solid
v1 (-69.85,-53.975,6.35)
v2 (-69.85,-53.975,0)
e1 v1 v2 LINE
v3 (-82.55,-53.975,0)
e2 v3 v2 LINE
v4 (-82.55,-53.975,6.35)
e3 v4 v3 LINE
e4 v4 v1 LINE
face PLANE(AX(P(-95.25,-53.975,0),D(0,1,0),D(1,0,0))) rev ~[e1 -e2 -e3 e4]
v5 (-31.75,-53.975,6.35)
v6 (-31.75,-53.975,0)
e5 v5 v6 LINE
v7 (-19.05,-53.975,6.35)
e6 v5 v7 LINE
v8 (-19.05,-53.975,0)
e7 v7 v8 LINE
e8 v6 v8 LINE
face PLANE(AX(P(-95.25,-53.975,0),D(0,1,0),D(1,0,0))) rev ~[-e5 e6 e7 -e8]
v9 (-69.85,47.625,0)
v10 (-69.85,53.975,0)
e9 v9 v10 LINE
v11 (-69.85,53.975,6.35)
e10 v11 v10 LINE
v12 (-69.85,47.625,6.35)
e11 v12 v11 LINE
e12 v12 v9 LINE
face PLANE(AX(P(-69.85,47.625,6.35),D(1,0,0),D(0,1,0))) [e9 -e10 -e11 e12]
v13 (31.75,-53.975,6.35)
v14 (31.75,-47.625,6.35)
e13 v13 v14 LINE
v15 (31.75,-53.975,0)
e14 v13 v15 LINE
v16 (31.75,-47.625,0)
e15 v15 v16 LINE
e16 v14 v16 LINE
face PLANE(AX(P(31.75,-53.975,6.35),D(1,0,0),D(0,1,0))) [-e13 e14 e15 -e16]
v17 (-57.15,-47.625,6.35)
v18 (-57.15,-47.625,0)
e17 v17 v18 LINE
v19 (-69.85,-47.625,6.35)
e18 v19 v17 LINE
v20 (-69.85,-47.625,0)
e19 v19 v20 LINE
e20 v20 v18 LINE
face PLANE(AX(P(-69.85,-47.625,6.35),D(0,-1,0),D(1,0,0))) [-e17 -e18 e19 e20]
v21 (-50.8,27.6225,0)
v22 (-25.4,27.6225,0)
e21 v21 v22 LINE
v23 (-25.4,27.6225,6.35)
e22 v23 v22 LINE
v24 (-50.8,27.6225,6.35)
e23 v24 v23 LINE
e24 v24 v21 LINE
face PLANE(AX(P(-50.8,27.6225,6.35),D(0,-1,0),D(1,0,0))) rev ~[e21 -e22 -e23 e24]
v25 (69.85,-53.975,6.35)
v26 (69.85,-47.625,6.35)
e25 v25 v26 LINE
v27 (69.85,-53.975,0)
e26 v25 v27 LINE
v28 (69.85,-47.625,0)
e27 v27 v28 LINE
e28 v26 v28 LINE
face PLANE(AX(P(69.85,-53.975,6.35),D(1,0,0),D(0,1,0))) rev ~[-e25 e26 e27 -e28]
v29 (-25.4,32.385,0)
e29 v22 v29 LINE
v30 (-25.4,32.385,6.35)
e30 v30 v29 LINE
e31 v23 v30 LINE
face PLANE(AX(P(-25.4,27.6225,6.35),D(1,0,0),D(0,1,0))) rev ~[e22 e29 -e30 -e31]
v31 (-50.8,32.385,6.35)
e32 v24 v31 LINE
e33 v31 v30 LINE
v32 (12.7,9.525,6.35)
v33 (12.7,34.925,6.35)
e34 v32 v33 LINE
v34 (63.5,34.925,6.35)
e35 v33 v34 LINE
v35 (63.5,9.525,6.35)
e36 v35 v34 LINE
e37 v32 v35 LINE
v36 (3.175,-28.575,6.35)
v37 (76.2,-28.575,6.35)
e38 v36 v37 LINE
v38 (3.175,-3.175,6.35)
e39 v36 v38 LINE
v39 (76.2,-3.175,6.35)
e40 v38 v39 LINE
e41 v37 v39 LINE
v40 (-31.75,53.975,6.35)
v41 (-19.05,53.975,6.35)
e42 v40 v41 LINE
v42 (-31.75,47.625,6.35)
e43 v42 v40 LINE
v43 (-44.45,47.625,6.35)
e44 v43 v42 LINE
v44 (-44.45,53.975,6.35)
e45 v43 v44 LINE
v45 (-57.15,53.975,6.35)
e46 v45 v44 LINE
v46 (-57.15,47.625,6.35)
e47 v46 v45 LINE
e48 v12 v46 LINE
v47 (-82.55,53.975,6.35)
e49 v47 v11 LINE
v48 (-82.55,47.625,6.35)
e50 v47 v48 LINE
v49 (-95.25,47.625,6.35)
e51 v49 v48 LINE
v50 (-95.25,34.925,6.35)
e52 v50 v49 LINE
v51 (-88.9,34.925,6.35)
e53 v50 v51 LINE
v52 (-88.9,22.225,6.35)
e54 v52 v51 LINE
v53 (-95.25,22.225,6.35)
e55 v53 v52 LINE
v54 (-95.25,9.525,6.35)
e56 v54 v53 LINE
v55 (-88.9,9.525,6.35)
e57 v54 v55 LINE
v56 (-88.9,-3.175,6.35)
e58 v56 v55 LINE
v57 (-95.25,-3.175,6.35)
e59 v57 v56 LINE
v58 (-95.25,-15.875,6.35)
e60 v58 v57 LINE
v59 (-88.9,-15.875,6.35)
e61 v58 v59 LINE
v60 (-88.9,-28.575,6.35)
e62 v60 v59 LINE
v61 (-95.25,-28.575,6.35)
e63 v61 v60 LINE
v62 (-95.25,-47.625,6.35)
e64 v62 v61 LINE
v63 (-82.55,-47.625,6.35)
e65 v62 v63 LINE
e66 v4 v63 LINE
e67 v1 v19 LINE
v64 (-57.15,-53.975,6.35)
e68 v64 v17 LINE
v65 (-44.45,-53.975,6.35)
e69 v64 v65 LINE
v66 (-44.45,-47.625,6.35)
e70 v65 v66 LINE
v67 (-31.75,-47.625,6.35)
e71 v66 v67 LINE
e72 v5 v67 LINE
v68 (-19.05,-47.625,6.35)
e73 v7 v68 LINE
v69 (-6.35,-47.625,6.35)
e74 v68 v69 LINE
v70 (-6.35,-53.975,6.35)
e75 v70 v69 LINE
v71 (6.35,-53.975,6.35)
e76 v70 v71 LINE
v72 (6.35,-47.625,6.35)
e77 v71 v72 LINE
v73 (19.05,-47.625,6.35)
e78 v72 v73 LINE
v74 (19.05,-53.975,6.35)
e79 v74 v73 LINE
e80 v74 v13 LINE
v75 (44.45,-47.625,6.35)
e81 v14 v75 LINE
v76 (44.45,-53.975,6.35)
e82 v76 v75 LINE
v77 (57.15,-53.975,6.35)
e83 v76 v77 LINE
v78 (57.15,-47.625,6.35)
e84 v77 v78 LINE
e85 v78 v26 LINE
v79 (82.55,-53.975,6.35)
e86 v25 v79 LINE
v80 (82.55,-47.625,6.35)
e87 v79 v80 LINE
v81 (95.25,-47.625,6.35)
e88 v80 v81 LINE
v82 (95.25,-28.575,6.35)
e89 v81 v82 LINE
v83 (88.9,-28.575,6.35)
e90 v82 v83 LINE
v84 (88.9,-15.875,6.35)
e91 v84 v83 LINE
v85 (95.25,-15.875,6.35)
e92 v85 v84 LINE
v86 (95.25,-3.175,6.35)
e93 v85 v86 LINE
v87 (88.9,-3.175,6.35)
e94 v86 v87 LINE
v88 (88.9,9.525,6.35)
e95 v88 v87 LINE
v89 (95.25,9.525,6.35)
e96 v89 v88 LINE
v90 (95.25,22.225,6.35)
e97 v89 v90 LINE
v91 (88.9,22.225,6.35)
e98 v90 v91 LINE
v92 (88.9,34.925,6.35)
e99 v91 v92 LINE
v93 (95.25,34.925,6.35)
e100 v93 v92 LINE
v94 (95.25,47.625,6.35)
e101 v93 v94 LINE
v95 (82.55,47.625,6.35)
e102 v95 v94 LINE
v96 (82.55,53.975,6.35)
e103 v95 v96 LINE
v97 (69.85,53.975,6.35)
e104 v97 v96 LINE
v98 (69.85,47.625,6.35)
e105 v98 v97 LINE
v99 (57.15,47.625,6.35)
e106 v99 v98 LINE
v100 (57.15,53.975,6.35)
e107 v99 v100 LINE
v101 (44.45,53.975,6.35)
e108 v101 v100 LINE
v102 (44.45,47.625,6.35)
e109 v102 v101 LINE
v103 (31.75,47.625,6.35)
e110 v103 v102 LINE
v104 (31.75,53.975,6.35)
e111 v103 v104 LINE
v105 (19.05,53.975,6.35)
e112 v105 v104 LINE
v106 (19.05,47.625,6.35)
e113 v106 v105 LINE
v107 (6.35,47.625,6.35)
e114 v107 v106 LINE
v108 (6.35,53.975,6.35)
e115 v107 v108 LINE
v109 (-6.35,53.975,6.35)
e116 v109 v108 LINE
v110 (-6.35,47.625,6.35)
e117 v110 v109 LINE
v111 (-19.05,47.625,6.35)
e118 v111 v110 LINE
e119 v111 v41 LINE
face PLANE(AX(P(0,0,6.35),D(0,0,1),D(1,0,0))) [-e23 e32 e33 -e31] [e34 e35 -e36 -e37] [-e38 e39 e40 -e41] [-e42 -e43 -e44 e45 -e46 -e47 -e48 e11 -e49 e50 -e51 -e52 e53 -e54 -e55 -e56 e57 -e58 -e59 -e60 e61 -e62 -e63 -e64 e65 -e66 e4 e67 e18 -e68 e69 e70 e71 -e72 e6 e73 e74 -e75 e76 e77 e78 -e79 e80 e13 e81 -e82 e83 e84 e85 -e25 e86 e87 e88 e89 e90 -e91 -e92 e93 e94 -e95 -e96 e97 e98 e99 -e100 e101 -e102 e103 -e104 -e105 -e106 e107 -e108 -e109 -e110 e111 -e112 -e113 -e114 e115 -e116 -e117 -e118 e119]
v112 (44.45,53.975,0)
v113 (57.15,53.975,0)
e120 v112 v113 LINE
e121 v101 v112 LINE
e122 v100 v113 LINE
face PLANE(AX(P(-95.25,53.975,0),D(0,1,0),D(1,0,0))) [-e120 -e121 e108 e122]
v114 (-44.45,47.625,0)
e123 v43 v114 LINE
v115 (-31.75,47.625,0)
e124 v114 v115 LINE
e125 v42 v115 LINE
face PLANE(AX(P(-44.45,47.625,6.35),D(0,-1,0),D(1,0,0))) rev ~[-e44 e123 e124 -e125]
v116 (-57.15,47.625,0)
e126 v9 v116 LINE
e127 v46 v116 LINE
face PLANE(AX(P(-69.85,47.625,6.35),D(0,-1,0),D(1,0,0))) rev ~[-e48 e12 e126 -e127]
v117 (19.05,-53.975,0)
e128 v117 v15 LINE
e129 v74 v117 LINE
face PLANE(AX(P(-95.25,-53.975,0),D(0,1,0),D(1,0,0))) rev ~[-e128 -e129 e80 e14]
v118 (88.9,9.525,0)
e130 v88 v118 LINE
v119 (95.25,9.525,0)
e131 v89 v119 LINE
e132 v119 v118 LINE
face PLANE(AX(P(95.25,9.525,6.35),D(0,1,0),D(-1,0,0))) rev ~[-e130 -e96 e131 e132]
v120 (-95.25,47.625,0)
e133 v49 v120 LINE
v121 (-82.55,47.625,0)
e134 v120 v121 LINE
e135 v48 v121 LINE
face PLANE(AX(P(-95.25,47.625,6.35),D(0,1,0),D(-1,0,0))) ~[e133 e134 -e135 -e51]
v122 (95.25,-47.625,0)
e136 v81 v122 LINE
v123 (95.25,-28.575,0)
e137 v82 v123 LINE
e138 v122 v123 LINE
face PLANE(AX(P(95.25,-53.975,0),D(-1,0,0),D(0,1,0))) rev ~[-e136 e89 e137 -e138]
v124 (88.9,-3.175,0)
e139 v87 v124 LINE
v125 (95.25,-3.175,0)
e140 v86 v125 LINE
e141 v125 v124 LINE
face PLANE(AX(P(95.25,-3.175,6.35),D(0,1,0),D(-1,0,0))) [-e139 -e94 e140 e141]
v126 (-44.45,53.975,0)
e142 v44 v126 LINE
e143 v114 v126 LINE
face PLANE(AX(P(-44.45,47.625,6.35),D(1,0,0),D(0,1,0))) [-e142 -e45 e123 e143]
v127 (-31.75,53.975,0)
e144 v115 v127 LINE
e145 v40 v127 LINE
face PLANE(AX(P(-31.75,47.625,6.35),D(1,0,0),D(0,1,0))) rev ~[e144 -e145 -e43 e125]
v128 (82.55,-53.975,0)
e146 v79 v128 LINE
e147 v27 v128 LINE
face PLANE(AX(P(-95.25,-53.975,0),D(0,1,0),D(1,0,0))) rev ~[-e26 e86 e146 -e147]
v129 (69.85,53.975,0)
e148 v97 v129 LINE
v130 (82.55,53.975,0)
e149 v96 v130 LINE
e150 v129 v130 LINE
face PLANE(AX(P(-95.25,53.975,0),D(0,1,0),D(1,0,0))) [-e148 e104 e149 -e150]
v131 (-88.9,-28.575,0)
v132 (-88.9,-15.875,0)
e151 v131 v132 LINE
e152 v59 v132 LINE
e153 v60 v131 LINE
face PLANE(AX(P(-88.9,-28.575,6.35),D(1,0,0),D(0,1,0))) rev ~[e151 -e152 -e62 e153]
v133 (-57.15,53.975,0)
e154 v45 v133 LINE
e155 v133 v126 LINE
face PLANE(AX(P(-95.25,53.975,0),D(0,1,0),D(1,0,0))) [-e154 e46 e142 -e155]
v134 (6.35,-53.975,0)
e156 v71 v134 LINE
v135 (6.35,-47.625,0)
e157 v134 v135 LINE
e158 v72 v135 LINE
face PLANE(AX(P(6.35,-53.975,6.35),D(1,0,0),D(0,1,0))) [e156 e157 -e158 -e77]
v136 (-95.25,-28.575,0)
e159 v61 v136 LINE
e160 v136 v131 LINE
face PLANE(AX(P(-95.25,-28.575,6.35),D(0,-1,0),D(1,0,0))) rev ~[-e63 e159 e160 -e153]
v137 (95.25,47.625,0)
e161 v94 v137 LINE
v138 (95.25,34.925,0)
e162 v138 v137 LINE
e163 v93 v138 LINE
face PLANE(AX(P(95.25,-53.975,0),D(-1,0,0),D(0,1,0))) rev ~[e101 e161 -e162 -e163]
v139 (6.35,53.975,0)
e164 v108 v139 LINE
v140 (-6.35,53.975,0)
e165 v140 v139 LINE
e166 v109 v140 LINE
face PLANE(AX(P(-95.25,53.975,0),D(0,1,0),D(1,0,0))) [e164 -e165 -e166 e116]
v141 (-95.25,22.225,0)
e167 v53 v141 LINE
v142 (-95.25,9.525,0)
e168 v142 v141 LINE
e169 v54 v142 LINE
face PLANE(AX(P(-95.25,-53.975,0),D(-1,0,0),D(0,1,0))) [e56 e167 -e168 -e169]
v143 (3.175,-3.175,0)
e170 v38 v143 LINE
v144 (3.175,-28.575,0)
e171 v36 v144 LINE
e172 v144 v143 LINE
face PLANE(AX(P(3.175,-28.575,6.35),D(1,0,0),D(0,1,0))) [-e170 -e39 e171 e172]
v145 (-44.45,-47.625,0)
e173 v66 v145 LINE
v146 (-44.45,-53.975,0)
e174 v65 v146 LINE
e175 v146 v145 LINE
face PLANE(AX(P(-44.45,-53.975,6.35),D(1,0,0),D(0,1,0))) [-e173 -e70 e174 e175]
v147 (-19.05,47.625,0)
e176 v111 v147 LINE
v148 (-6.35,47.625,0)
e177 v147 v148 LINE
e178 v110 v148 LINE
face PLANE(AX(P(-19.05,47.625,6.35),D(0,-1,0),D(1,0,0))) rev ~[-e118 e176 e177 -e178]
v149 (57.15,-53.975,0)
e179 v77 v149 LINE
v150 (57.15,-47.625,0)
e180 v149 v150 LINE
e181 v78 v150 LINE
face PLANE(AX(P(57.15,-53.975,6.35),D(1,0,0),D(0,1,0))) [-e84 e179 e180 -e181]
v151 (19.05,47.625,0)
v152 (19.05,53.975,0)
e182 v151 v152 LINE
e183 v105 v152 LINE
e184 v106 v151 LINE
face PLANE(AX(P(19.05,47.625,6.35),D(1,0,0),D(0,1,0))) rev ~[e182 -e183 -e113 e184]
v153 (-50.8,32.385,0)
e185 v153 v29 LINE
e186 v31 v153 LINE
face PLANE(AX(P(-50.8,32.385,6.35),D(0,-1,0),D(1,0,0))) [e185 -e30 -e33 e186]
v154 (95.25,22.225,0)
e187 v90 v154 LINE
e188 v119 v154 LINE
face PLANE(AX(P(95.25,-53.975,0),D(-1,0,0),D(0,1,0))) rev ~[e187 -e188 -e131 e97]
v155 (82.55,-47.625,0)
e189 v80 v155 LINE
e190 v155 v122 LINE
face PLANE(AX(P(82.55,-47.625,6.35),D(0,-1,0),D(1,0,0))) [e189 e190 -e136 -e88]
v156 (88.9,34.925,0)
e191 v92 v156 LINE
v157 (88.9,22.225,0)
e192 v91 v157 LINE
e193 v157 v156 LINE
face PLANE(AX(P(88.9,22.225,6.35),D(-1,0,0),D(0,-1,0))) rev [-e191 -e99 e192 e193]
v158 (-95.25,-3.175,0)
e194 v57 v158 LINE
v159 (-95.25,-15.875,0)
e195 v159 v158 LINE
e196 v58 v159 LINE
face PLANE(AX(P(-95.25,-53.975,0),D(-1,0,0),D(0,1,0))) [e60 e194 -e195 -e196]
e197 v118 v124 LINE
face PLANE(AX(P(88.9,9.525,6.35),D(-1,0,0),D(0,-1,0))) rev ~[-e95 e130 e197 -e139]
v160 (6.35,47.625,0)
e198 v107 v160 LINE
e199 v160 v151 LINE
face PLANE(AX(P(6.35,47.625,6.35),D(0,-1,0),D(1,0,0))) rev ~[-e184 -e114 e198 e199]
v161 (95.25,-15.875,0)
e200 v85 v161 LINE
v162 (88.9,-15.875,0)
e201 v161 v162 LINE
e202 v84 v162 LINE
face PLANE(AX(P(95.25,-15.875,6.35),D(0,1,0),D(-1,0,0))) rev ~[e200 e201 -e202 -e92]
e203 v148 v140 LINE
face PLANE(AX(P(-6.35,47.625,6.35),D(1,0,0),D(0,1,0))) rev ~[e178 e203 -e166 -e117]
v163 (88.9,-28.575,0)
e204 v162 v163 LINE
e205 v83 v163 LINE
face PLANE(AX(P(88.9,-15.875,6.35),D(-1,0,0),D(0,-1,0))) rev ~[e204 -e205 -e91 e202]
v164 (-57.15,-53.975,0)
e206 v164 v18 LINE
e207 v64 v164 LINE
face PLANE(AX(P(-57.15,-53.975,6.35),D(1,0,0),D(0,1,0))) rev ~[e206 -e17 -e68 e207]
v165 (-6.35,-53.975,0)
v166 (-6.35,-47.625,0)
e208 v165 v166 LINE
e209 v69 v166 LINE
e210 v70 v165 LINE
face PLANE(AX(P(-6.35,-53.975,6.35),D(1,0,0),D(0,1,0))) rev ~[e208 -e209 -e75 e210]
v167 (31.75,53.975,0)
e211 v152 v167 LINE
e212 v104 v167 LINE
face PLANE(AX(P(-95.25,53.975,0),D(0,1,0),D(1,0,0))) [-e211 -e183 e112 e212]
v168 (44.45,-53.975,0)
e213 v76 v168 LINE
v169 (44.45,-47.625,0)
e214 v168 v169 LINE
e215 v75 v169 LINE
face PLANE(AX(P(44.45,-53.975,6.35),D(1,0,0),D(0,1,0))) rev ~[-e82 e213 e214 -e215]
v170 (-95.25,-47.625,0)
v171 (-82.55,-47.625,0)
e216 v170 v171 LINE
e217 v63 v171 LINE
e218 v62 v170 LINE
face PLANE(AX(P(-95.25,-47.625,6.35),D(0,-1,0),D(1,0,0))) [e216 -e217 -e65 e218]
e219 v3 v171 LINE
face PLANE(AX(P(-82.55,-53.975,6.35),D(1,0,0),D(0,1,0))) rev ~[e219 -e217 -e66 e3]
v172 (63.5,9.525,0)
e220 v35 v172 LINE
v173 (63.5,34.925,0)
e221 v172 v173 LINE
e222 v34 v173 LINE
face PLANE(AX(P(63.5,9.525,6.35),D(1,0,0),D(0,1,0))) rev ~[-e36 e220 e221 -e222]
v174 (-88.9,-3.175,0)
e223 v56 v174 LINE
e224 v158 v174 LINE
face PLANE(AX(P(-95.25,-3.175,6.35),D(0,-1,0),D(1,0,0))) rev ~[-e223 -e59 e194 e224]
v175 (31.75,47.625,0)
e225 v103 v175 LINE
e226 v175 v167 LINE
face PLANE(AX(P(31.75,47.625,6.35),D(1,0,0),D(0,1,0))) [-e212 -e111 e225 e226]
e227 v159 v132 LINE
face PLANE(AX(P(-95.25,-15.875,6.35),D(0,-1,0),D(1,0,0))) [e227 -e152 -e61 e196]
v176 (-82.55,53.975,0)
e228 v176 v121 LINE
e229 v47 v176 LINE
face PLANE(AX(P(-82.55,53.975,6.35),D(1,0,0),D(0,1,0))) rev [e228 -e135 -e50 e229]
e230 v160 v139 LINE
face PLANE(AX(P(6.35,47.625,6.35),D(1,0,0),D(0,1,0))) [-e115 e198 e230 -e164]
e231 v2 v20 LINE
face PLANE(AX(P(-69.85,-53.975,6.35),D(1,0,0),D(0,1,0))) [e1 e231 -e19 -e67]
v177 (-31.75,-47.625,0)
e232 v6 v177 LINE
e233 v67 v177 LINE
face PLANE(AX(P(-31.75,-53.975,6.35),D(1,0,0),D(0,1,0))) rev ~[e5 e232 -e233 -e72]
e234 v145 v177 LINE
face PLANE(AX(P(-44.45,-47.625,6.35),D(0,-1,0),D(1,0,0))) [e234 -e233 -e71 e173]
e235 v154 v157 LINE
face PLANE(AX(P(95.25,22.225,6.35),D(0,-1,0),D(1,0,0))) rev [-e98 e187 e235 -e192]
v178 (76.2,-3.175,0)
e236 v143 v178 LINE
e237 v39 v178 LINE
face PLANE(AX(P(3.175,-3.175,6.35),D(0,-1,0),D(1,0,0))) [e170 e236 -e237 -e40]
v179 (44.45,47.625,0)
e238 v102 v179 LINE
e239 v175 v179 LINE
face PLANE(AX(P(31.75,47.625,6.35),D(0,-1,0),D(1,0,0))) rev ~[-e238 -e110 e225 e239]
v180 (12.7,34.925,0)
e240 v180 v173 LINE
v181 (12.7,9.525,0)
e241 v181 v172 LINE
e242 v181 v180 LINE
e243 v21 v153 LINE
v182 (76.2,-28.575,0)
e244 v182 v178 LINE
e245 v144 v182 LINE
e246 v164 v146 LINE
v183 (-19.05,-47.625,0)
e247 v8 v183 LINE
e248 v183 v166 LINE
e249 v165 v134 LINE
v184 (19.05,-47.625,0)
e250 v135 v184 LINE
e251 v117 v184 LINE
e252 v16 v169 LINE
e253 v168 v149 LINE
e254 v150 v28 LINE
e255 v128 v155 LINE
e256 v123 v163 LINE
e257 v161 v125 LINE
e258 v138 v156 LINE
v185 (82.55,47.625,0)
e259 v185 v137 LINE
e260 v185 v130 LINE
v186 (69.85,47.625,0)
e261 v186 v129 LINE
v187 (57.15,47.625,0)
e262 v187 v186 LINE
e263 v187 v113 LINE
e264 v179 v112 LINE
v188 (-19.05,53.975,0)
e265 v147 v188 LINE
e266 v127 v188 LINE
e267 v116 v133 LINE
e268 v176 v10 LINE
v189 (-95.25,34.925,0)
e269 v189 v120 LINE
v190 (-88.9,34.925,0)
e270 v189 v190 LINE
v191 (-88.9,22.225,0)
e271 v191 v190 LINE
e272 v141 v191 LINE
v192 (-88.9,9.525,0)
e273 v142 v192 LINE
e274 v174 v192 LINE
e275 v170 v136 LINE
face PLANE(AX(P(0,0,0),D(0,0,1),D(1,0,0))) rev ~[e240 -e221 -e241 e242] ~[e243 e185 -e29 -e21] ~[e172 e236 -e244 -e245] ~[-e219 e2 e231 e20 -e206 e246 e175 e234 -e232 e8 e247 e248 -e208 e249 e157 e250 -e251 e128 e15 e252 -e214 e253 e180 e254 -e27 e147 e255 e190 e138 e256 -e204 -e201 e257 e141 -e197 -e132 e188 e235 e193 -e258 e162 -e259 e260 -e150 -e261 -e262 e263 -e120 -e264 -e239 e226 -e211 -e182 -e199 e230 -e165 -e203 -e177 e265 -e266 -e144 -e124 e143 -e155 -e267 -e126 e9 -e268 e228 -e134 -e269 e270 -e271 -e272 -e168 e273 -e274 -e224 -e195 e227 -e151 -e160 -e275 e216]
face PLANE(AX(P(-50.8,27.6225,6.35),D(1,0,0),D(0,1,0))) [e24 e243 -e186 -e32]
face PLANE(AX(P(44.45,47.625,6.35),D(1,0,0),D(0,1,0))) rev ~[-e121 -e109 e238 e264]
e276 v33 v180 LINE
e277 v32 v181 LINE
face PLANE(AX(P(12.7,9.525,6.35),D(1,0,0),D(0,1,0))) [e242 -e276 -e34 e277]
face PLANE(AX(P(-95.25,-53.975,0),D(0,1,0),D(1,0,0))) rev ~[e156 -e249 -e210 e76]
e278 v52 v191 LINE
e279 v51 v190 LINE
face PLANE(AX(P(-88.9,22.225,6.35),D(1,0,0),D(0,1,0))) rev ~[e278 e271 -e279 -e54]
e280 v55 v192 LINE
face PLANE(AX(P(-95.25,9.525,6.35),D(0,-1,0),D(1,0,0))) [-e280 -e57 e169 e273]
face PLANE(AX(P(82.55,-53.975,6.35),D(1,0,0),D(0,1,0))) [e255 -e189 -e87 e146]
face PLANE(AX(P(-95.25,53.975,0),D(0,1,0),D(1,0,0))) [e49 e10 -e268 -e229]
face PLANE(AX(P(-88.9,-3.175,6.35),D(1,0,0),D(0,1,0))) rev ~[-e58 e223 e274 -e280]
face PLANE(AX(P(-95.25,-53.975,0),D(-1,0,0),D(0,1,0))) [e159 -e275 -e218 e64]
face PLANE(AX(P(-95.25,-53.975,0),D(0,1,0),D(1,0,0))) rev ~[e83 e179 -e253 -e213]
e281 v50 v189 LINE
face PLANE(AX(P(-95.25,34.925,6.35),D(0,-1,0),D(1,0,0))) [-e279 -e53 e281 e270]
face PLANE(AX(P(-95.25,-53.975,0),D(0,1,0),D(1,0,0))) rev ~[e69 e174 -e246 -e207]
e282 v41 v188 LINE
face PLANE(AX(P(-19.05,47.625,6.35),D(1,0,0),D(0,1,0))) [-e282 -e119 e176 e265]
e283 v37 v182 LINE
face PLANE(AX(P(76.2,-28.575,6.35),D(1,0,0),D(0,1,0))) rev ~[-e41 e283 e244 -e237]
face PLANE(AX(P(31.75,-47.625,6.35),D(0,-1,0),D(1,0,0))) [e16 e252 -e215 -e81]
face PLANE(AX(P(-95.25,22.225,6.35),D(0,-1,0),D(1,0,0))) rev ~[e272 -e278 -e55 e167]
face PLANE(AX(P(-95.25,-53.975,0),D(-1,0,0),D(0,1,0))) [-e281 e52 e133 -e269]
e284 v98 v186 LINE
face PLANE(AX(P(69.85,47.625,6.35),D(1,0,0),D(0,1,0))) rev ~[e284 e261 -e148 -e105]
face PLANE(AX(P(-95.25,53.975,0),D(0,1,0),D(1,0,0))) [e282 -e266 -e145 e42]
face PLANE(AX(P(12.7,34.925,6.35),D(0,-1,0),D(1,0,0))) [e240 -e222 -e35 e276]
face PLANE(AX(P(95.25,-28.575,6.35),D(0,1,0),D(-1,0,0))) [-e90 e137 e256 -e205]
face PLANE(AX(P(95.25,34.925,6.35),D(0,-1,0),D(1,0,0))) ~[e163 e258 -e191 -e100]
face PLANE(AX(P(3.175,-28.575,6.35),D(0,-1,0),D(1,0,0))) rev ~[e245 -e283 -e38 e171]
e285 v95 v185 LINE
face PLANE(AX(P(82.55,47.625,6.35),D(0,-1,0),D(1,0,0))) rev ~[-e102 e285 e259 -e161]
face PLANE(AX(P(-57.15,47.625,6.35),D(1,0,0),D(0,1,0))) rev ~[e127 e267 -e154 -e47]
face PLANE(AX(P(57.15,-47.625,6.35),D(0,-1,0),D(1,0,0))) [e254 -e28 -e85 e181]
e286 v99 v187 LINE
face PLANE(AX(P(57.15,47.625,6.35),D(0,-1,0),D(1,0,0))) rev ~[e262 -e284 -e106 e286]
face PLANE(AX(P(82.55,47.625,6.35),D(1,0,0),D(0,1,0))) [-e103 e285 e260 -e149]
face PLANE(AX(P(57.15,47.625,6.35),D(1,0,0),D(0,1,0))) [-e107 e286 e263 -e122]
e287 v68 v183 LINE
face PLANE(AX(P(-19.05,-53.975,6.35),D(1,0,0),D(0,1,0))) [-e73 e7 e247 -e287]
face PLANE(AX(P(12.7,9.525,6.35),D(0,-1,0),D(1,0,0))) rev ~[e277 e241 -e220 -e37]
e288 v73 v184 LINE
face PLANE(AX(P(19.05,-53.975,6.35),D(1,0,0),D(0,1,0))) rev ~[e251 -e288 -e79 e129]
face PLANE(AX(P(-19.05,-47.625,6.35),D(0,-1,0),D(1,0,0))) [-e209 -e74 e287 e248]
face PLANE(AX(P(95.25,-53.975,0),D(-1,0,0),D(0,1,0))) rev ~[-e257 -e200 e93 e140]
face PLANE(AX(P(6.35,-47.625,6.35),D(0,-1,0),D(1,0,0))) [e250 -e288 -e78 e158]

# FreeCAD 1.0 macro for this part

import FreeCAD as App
import Part
import Sketcher

V = App.Vector
Q = App.Units.Quantity

doc = App.newDocument("Part")
body = doc.addObject("PartDesign::Body", "Body")

sketch1 = body.newObject("Sketcher::SketchObject", "Sketch")
sketch1.AttachmentSupport = (doc.getObject("XY_Plane"), [""])
sketch1.MapMode = "FlatFace"
sketch1.addGeometry(Part.LineSegment(V(-95, 54, 0), V(-95, -54, 0)), False)
sketch1.addGeometry(Part.LineSegment(V(-95, -54, 0), V(95, -54, 0)), False)
sketch1.addGeometry(Part.LineSegment(V(95, -54, 0), V(95, 54, 0)), False)
sketch1.addGeometry(Part.LineSegment(V(95, 54, 0), V(-95, 54, 0)), False)
sketch1.addConstraint(Sketcher.Constraint("Coincident", 0, 2, 1, 1))
sketch1.addConstraint(Sketcher.Constraint("Coincident", 1, 2, 2, 1))
sketch1.addConstraint(Sketcher.Constraint("Coincident", 2, 2, 3, 1))
sketch1.addConstraint(Sketcher.Constraint("Coincident", 3, 2, 0, 1))
sketch1.addConstraint(Sketcher.Constraint("Vertical", 0))
sketch1.addConstraint(Sketcher.Constraint("Horizontal", 1))
sketch1.addConstraint(Sketcher.Constraint("Vertical", 2))
sketch1.addConstraint(Sketcher.Constraint("Horizontal", 3))
sketch1.addConstraint(Sketcher.Constraint("Symmetric", 0, 2, 2, 2, -1, 1))
sketch1.addConstraint(Sketcher.Constraint("DistanceX", 1, 1, 1, 2, Q("7.5 in")))
sketch1.addConstraint(Sketcher.Constraint("DistanceY", 0, 2, 0, 1, Q("4.25 in")))
pad1 = body.newObject("PartDesign::Pad", "Pad")
pad1.Profile = sketch1
pad1.Length = Q("0.25 in")

sketch2 = body.newObject("Sketcher::SketchObject", "Sketch001")
sketch2.AttachmentSupport = (doc.getObject("XY_Plane"), [""])
sketch2.MapMode = "FlatFace"
sketch2.AttachmentOffset = App.Placement(V(0, 0, 0.25 * 25.4), App.Rotation())
sketch2.addGeometry(Part.LineSegment(V(-95, -48, 0), V(-95, -54, 0)), False)
sketch2.addGeometry(Part.LineSegment(V(-95, -54, 0), V(-83, -54, 0)), False)
sketch2.addGeometry(Part.LineSegment(V(-83, -54, 0), V(-83, -48, 0)), False)
sketch2.addGeometry(Part.LineSegment(V(-83, -48, 0), V(-95, -48, 0)), False)
sketch2.addConstraint(Sketcher.Constraint("Coincident", 0, 2, 1, 1))
sketch2.addConstraint(Sketcher.Constraint("Coincident", 1, 2, 2, 1))
sketch2.addConstraint(Sketcher.Constraint("Coincident", 2, 2, 3, 1))
sketch2.addConstraint(Sketcher.Constraint("Coincident", 3, 2, 0, 1))
sketch2.addConstraint(Sketcher.Constraint("Vertical", 0))
sketch2.addConstraint(Sketcher.Constraint("Horizontal", 1))
sketch2.addConstraint(Sketcher.Constraint("Vertical", 2))
sketch2.addConstraint(Sketcher.Constraint("Horizontal", 3))
sketch2.addConstraint(Sketcher.Constraint("DistanceX", 1, 1, 1, 2, Q("0.5 in")))
sketch2.addConstraint(Sketcher.Constraint("DistanceY", 0, 2, 0, 1, Q("0.25 in")))
sketch2.addConstraint(Sketcher.Constraint("DistanceX", 0, 2, -1, 1, Q("3.75 in")))
sketch2.addConstraint(Sketcher.Constraint("DistanceY", 0, 2, -1, 1, Q("2.125 in")))
pocket1 = body.newObject("PartDesign::Pocket", "Pocket")
pocket1.Profile = sketch2
pocket1.Type = "ThroughAll"
doc.recompute()

linearpattern = body.newObject("PartDesign::LinearPattern", "LinearPattern")
linearpattern.Originals = [pocket1]
linearpattern.Direction = (doc.getObject("X_Axis"), [""])
linearpattern.Mode = "offset"
linearpattern.Offset = Q("1 in")
linearpattern.Occurrences = 8
body.Tip = linearpattern
doc.recompute()

mirrored = body.newObject("PartDesign::Mirrored", "Mirrored")
mirrored.Originals = [pocket1]
mirrored.MirrorPlane = (doc.getObject("XZ_Plane"), [""])
body.Tip = mirrored

sketch3 = body.newObject("Sketcher::SketchObject", "Sketch002")
sketch3.AttachmentSupport = (doc.getObject("XY_Plane"), [""])
sketch3.MapMode = "FlatFace"
sketch3.AttachmentOffset = App.Placement(V(0, 0, 0.25 * 25.4), App.Rotation())
sketch3.addGeometry(Part.LineSegment(V(-70, 54, 0), V(-70, 48, 0)), False)
sketch3.addGeometry(Part.LineSegment(V(-70, 48, 0), V(-57, 48, 0)), False)
sketch3.addGeometry(Part.LineSegment(V(-57, 48, 0), V(-57, 54, 0)), False)
sketch3.addGeometry(Part.LineSegment(V(-57, 54, 0), V(-70, 54, 0)), False)
sketch3.addConstraint(Sketcher.Constraint("Coincident", 0, 2, 1, 1))
sketch3.addConstraint(Sketcher.Constraint("Coincident", 1, 2, 2, 1))
sketch3.addConstraint(Sketcher.Constraint("Coincident", 2, 2, 3, 1))
sketch3.addConstraint(Sketcher.Constraint("Coincident", 3, 2, 0, 1))
sketch3.addConstraint(Sketcher.Constraint("Vertical", 0))
sketch3.addConstraint(Sketcher.Constraint("Horizontal", 1))
sketch3.addConstraint(Sketcher.Constraint("Vertical", 2))
sketch3.addConstraint(Sketcher.Constraint("Horizontal", 3))
sketch3.addConstraint(Sketcher.Constraint("DistanceX", 1, 1, 1, 2, Q("0.5 in")))
sketch3.addConstraint(Sketcher.Constraint("DistanceY", 0, 2, 0, 1, Q("0.25 in")))
sketch3.addConstraint(Sketcher.Constraint("DistanceX", 0, 2, -1, 1, Q("2.75 in")))
sketch3.addConstraint(Sketcher.Constraint("DistanceY", -1, 1, 0, 2, Q("1.875 in")))
pocket2 = body.newObject("PartDesign::Pocket", "Pocket001")
pocket2.Profile = sketch3
pocket2.Type = "ThroughAll"

sketch4 = body.newObject("Sketcher::SketchObject", "Sketch003")
sketch4.AttachmentSupport = (doc.getObject("XY_Plane"), [""])
sketch4.MapMode = "FlatFace"
sketch4.AttachmentOffset = App.Placement(V(0, 0, 0.25 * 25.4), App.Rotation())
sketch4.addGeometry(Part.LineSegment(V(-44, 54, 0), V(-44, 48, 0)), False)
sketch4.addGeometry(Part.LineSegment(V(-44, 48, 0), V(-32, 48, 0)), False)
sketch4.addGeometry(Part.LineSegment(V(-32, 48, 0), V(-32, 54, 0)), False)
sketch4.addGeometry(Part.LineSegment(V(-32, 54, 0), V(-44, 54, 0)), False)
sketch4.addConstraint(Sketcher.Constraint("Coincident", 0, 2, 1, 1))
sketch4.addConstraint(Sketcher.Constraint("Coincident", 1, 2, 2, 1))
sketch4.addConstraint(Sketcher.Constraint("Coincident", 2, 2, 3, 1))
sketch4.addConstraint(Sketcher.Constraint("Coincident", 3, 2, 0, 1))
sketch4.addConstraint(Sketcher.Constraint("Vertical", 0))
sketch4.addConstraint(Sketcher.Constraint("Horizontal", 1))
sketch4.addConstraint(Sketcher.Constraint("Vertical", 2))
sketch4.addConstraint(Sketcher.Constraint("Horizontal", 3))
sketch4.addConstraint(Sketcher.Constraint("DistanceX", 1, 1, 1, 2, Q("0.5 in")))
sketch4.addConstraint(Sketcher.Constraint("DistanceY", 0, 2, 0, 1, Q("0.25 in")))
sketch4.addConstraint(Sketcher.Constraint("DistanceX", 0, 2, -1, 1, Q("1.75 in")))
sketch4.addConstraint(Sketcher.Constraint("DistanceY", -1, 1, 0, 2, Q("1.875 in")))
pocket3 = body.newObject("PartDesign::Pocket", "Pocket002")
pocket3.Profile = sketch4
pocket3.Type = "ThroughAll"

sketch5 = body.newObject("Sketcher::SketchObject", "Sketch004")
sketch5.AttachmentSupport = (doc.getObject("XY_Plane"), [""])
sketch5.MapMode = "FlatFace"
sketch5.AttachmentOffset = App.Placement(V(0, 0, 0.25 * 25.4), App.Rotation())
sketch5.addGeometry(Part.LineSegment(V(-19, 54, 0), V(-19, 48, 0)), False)
sketch5.addGeometry(Part.LineSegment(V(-19, 48, 0), V(-6, 48, 0)), False)
sketch5.addGeometry(Part.LineSegment(V(-6, 48, 0), V(-6, 54, 0)), False)
sketch5.addGeometry(Part.LineSegment(V(-6, 54, 0), V(-19, 54, 0)), False)
sketch5.addConstraint(Sketcher.Constraint("Coincident", 0, 2, 1, 1))
sketch5.addConstraint(Sketcher.Constraint("Coincident", 1, 2, 2, 1))
sketch5.addConstraint(Sketcher.Constraint("Coincident", 2, 2, 3, 1))
sketch5.addConstraint(Sketcher.Constraint("Coincident", 3, 2, 0, 1))
sketch5.addConstraint(Sketcher.Constraint("Vertical", 0))
sketch5.addConstraint(Sketcher.Constraint("Horizontal", 1))
sketch5.addConstraint(Sketcher.Constraint("Vertical", 2))
sketch5.addConstraint(Sketcher.Constraint("Horizontal", 3))
sketch5.addConstraint(Sketcher.Constraint("DistanceX", 1, 1, 1, 2, Q("0.5 in")))
sketch5.addConstraint(Sketcher.Constraint("DistanceY", 0, 2, 0, 1, Q("0.25 in")))
sketch5.addConstraint(Sketcher.Constraint("DistanceX", 0, 2, -1, 1, Q("0.75 in")))
sketch5.addConstraint(Sketcher.Constraint("DistanceY", -1, 1, 0, 2, Q("1.875 in")))
pocket4 = body.newObject("PartDesign::Pocket", "Pocket003")
pocket4.Profile = sketch5
pocket4.Type = "ThroughAll"

sketch6 = body.newObject("Sketcher::SketchObject", "Sketch005")
sketch6.AttachmentSupport = (doc.getObject("XY_Plane"), [""])
sketch6.MapMode = "FlatFace"
sketch6.AttachmentOffset = App.Placement(V(0, 0, 0.25 * 25.4), App.Rotation())
sketch6.addGeometry(Part.LineSegment(V(6, 54, 0), V(6, 48, 0)), False)
sketch6.addGeometry(Part.LineSegment(V(6, 48, 0), V(19, 48, 0)), False)
sketch6.addGeometry(Part.LineSegment(V(19, 48, 0), V(19, 54, 0)), False)
sketch6.addGeometry(Part.LineSegment(V(19, 54, 0), V(6, 54, 0)), False)
sketch6.addConstraint(Sketcher.Constraint("Coincident", 0, 2, 1, 1))
sketch6.addConstraint(Sketcher.Constraint("Coincident", 1, 2, 2, 1))
sketch6.addConstraint(Sketcher.Constraint("Coincident", 2, 2, 3, 1))
sketch6.addConstraint(Sketcher.Constraint("Coincident", 3, 2, 0, 1))
sketch6.addConstraint(Sketcher.Constraint("Vertical", 0))
sketch6.addConstraint(Sketcher.Constraint("Horizontal", 1))
sketch6.addConstraint(Sketcher.Constraint("Vertical", 2))
sketch6.addConstraint(Sketcher.Constraint("Horizontal", 3))
sketch6.addConstraint(Sketcher.Constraint("DistanceX", 1, 1, 1, 2, Q("0.5 in")))
sketch6.addConstraint(Sketcher.Constraint("DistanceY", 0, 2, 0, 1, Q("0.25 in")))
sketch6.addConstraint(Sketcher.Constraint("DistanceX", -1, 1, 0, 2, Q("0.25 in")))
sketch6.addConstraint(Sketcher.Constraint("DistanceY", -1, 1, 0, 2, Q("1.875 in")))
pocket5 = body.newObject("PartDesign::Pocket", "Pocket004")
pocket5.Profile = sketch6
pocket5.Type = "ThroughAll"

sketch7 = body.newObject("Sketcher::SketchObject", "Sketch006")
sketch7.AttachmentSupport = (doc.getObject("XY_Plane"), [""])
sketch7.MapMode = "FlatFace"
sketch7.AttachmentOffset = App.Placement(V(0, 0, 0.25 * 25.4), App.Rotation())
sketch7.addGeometry(Part.LineSegment(V(32, 54, 0), V(32, 48, 0)), False)
sketch7.addGeometry(Part.LineSegment(V(32, 48, 0), V(44, 48, 0)), False)
sketch7.addGeometry(Part.LineSegment(V(44, 48, 0), V(44, 54, 0)), False)
sketch7.addGeometry(Part.LineSegment(V(44, 54, 0), V(32, 54, 0)), False)
sketch7.addConstraint(Sketcher.Constraint("Coincident", 0, 2, 1, 1))
sketch7.addConstraint(Sketcher.Constraint("Coincident", 1, 2, 2, 1))
sketch7.addConstraint(Sketcher.Constraint("Coincident", 2, 2, 3, 1))
sketch7.addConstraint(Sketcher.Constraint("Coincident", 3, 2, 0, 1))
sketch7.addConstraint(Sketcher.Constraint("Vertical", 0))
sketch7.addConstraint(Sketcher.Constraint("Horizontal", 1))
sketch7.addConstraint(Sketcher.Constraint("Vertical", 2))
sketch7.addConstraint(Sketcher.Constraint("Horizontal", 3))
sketch7.addConstraint(Sketcher.Constraint("DistanceX", 1, 1, 1, 2, Q("0.5 in")))
sketch7.addConstraint(Sketcher.Constraint("DistanceY", 0, 2, 0, 1, Q("0.25 in")))
sketch7.addConstraint(Sketcher.Constraint("DistanceX", -1, 1, 0, 2, Q("1.25 in")))
sketch7.addConstraint(Sketcher.Constraint("DistanceY", -1, 1, 0, 2, Q("1.875 in")))
pocket6 = body.newObject("PartDesign::Pocket", "Pocket005")
pocket6.Profile = sketch7
pocket6.Type = "ThroughAll"

sketch8 = body.newObject("Sketcher::SketchObject", "Sketch007")
sketch8.AttachmentSupport = (doc.getObject("XY_Plane"), [""])
sketch8.MapMode = "FlatFace"
sketch8.AttachmentOffset = App.Placement(V(0, 0, 0.25 * 25.4), App.Rotation())
sketch8.addGeometry(Part.LineSegment(V(57, 54, 0), V(57, 48, 0)), False)
sketch8.addGeometry(Part.LineSegment(V(57, 48, 0), V(70, 48, 0)), False)
sketch8.addGeometry(Part.LineSegment(V(70, 48, 0), V(70, 54, 0)), False)
sketch8.addGeometry(Part.LineSegment(V(70, 54, 0), V(57, 54, 0)), False)
sketch8.addConstraint(Sketcher.Constraint("Coincident", 0, 2, 1, 1))
sketch8.addConstraint(Sketcher.Constraint("Coincident", 1, 2, 2, 1))
sketch8.addConstraint(Sketcher.Constraint("Coincident", 2, 2, 3, 1))
sketch8.addConstraint(Sketcher.Constraint("Coincident", 3, 2, 0, 1))
sketch8.addConstraint(Sketcher.Constraint("Vertical", 0))
sketch8.addConstraint(Sketcher.Constraint("Horizontal", 1))
sketch8.addConstraint(Sketcher.Constraint("Vertical", 2))
sketch8.addConstraint(Sketcher.Constraint("Horizontal", 3))
sketch8.addConstraint(Sketcher.Constraint("DistanceX", 1, 1, 1, 2, Q("0.5 in")))
sketch8.addConstraint(Sketcher.Constraint("DistanceY", 0, 2, 0, 1, Q("0.25 in")))
sketch8.addConstraint(Sketcher.Constraint("DistanceX", -1, 1, 0, 2, Q("2.25 in")))
sketch8.addConstraint(Sketcher.Constraint("DistanceY", -1, 1, 0, 2, Q("1.875 in")))
pocket7 = body.newObject("PartDesign::Pocket", "Pocket006")
pocket7.Profile = sketch8
pocket7.Type = "ThroughAll"

sketch9 = body.newObject("Sketcher::SketchObject", "Sketch008")
sketch9.AttachmentSupport = (doc.getObject("XY_Plane"), [""])
sketch9.MapMode = "FlatFace"
sketch9.AttachmentOffset = App.Placement(V(0, 0, 0.25 * 25.4), App.Rotation())
sketch9.addGeometry(Part.LineSegment(V(83, 54, 0), V(83, 48, 0)), False)
sketch9.addGeometry(Part.LineSegment(V(83, 48, 0), V(95, 48, 0)), False)
sketch9.addGeometry(Part.LineSegment(V(95, 48, 0), V(95, 54, 0)), False)
sketch9.addGeometry(Part.LineSegment(V(95, 54, 0), V(83, 54, 0)), False)
sketch9.addConstraint(Sketcher.Constraint("Coincident", 0, 2, 1, 1))
sketch9.addConstraint(Sketcher.Constraint("Coincident", 1, 2, 2, 1))
sketch9.addConstraint(Sketcher.Constraint("Coincident", 2, 2, 3, 1))
sketch9.addConstraint(Sketcher.Constraint("Coincident", 3, 2, 0, 1))
sketch9.addConstraint(Sketcher.Constraint("Vertical", 0))
sketch9.addConstraint(Sketcher.Constraint("Horizontal", 1))
sketch9.addConstraint(Sketcher.Constraint("Vertical", 2))
sketch9.addConstraint(Sketcher.Constraint("Horizontal", 3))
sketch9.addConstraint(Sketcher.Constraint("DistanceX", 1, 1, 1, 2, Q("0.5 in")))
sketch9.addConstraint(Sketcher.Constraint("DistanceY", 0, 2, 0, 1, Q("0.25 in")))
sketch9.addConstraint(Sketcher.Constraint("DistanceX", -1, 1, 0, 2, Q("3.25 in")))
sketch9.addConstraint(Sketcher.Constraint("DistanceY", -1, 1, 0, 2, Q("1.875 in")))
pocket8 = body.newObject("PartDesign::Pocket", "Pocket007")
pocket8.Profile = sketch9
pocket8.Type = "ThroughAll"

sketch10 = body.newObject("Sketcher::SketchObject", "Sketch009")
sketch10.AttachmentSupport = (doc.getObject("XY_Plane"), [""])
sketch10.MapMode = "FlatFace"
sketch10.AttachmentOffset = App.Placement(V(0, 0, 0.25 * 25.4), App.Rotation())
sketch10.addGeometry(Part.LineSegment(V(-95, 35, 0), V(-95, 22, 0)), False)
sketch10.addGeometry(Part.LineSegment(V(-95, 22, 0), V(-89, 22, 0)), False)
sketch10.addGeometry(Part.LineSegment(V(-89, 22, 0), V(-89, 35, 0)), False)
sketch10.addGeometry(Part.LineSegment(V(-89, 35, 0), V(-95, 35, 0)), False)
sketch10.addConstraint(Sketcher.Constraint("Coincident", 0, 2, 1, 1))
sketch10.addConstraint(Sketcher.Constraint("Coincident", 1, 2, 2, 1))
sketch10.addConstraint(Sketcher.Constraint("Coincident", 2, 2, 3, 1))
sketch10.addConstraint(Sketcher.Constraint("Coincident", 3, 2, 0, 1))
sketch10.addConstraint(Sketcher.Constraint("Vertical", 0))
sketch10.addConstraint(Sketcher.Constraint("Horizontal", 1))
sketch10.addConstraint(Sketcher.Constraint("Vertical", 2))
sketch10.addConstraint(Sketcher.Constraint("Horizontal", 3))
sketch10.addConstraint(Sketcher.Constraint("DistanceY", 0, 2, 0, 1, Q("0.5 in")))
sketch10.addConstraint(Sketcher.Constraint("DistanceX", 1, 1, 1, 2, Q("0.25 in")))
sketch10.addConstraint(Sketcher.Constraint("DistanceX", 1, 2, -1, 1, Q("3.5 in")))
sketch10.addConstraint(Sketcher.Constraint("DistanceY", -1, 1, 0, 2, Q("0.875 in")))
pocket9 = body.newObject("PartDesign::Pocket", "Pocket008")
pocket9.Profile = sketch10
pocket9.Type = "ThroughAll"
doc.recompute()

linearpattern2 = body.newObject("PartDesign::LinearPattern", "LinearPattern001")
linearpattern2.Originals = [pocket9]
linearpattern2.Direction = (doc.getObject("Y_Axis"), [""])
linearpattern2.Mode = "offset"
linearpattern2.Offset = Q("1 in")
linearpattern2.Occurrences = 3
linearpattern2.Reversed = True
body.Tip = linearpattern2
doc.recompute()

mirrored2 = body.newObject("PartDesign::Mirrored", "Mirrored001")
mirrored2.Originals = [pocket9]
mirrored2.MirrorPlane = (doc.getObject("YZ_Plane"), [""])
body.Tip = mirrored2

sketch11 = body.newObject("Sketcher::SketchObject", "Sketch010")
sketch11.AttachmentSupport = (doc.getObject("XY_Plane"), [""])
sketch11.MapMode = "FlatFace"
sketch11.AttachmentOffset = App.Placement(V(0, 0, 0.25 * 25.4), App.Rotation())
sketch11.addGeometry(Part.LineSegment(V(95, -3, 0), V(95, 10, 0)), False)
sketch11.addGeometry(Part.LineSegment(V(95, 10, 0), V(89, 10, 0)), False)
sketch11.addGeometry(Part.LineSegment(V(89, 10, 0), V(89, -3, 0)), False)
sketch11.addGeometry(Part.LineSegment(V(89, -3, 0), V(95, -3, 0)), False)
sketch11.addConstraint(Sketcher.Constraint("Coincident", 0, 2, 1, 1))
sketch11.addConstraint(Sketcher.Constraint("Coincident", 1, 2, 2, 1))
sketch11.addConstraint(Sketcher.Constraint("Coincident", 2, 2, 3, 1))
sketch11.addConstraint(Sketcher.Constraint("Coincident", 3, 2, 0, 1))
sketch11.addConstraint(Sketcher.Constraint("Vertical", 0))
sketch11.addConstraint(Sketcher.Constraint("Horizontal", 1))
sketch11.addConstraint(Sketcher.Constraint("Vertical", 2))
sketch11.addConstraint(Sketcher.Constraint("Horizontal", 3))
sketch11.addConstraint(Sketcher.Constraint("DistanceY", 0, 1, 0, 2, Q("0.5 in")))
sketch11.addConstraint(Sketcher.Constraint("DistanceX", 1, 2, 1, 1, Q("0.25 in")))
sketch11.addConstraint(Sketcher.Constraint("DistanceX", -1, 1, 1, 2, Q("3.5 in")))
sketch11.addConstraint(Sketcher.Constraint("DistanceY", -1, 1, 0, 2, Q("0.375 in")))
pocket10 = body.newObject("PartDesign::Pocket", "Pocket009")
pocket10.Profile = sketch11
pocket10.Type = "ThroughAll"

sketch12 = body.newObject("Sketcher::SketchObject", "Sketch011")
sketch12.AttachmentSupport = (doc.getObject("XY_Plane"), [""])
sketch12.MapMode = "FlatFace"
sketch12.AttachmentOffset = App.Placement(V(0, 0, 0.25 * 25.4), App.Rotation())
sketch12.addGeometry(Part.LineSegment(V(95, -29, 0), V(95, -16, 0)), False)
sketch12.addGeometry(Part.LineSegment(V(95, -16, 0), V(89, -16, 0)), False)
sketch12.addGeometry(Part.LineSegment(V(89, -16, 0), V(89, -29, 0)), False)
sketch12.addGeometry(Part.LineSegment(V(89, -29, 0), V(95, -29, 0)), False)
sketch12.addConstraint(Sketcher.Constraint("Coincident", 0, 2, 1, 1))
sketch12.addConstraint(Sketcher.Constraint("Coincident", 1, 2, 2, 1))
sketch12.addConstraint(Sketcher.Constraint("Coincident", 2, 2, 3, 1))
sketch12.addConstraint(Sketcher.Constraint("Coincident", 3, 2, 0, 1))
sketch12.addConstraint(Sketcher.Constraint("Vertical", 0))
sketch12.addConstraint(Sketcher.Constraint("Horizontal", 1))
sketch12.addConstraint(Sketcher.Constraint("Vertical", 2))
sketch12.addConstraint(Sketcher.Constraint("Horizontal", 3))
sketch12.addConstraint(Sketcher.Constraint("DistanceY", 0, 1, 0, 2, Q("0.5 in")))
sketch12.addConstraint(Sketcher.Constraint("DistanceX", 1, 2, 1, 1, Q("0.25 in")))
sketch12.addConstraint(Sketcher.Constraint("DistanceX", -1, 1, 1, 2, Q("3.5 in")))
sketch12.addConstraint(Sketcher.Constraint("DistanceY", 0, 2, -1, 1, Q("0.625 in")))
pocket11 = body.newObject("PartDesign::Pocket", "Pocket010")
pocket11.Profile = sketch12
pocket11.Type = "ThroughAll"

sketch13 = body.newObject("Sketcher::SketchObject", "Sketch012")
sketch13.AttachmentSupport = (doc.getObject("XY_Plane"), [""])
sketch13.MapMode = "FlatFace"
sketch13.AttachmentOffset = App.Placement(V(0, 0, 0.25 * 25.4), App.Rotation())
sketch13.addGeometry(Part.LineSegment(V(-50.8, 32.4, 0), V(-50.8, 27.6, 0)), False)
sketch13.addGeometry(Part.LineSegment(V(-50.8, 27.6, 0), V(-25.4, 27.6, 0)), False)
sketch13.addGeometry(Part.LineSegment(V(-25.4, 27.6, 0), V(-25.4, 32.4, 0)), False)
sketch13.addGeometry(Part.LineSegment(V(-25.4, 32.4, 0), V(-50.8, 32.4, 0)), False)
sketch13.addConstraint(Sketcher.Constraint("Coincident", 0, 2, 1, 1))
sketch13.addConstraint(Sketcher.Constraint("Coincident", 1, 2, 2, 1))
sketch13.addConstraint(Sketcher.Constraint("Coincident", 2, 2, 3, 1))
sketch13.addConstraint(Sketcher.Constraint("Coincident", 3, 2, 0, 1))
sketch13.addConstraint(Sketcher.Constraint("Vertical", 0))
sketch13.addConstraint(Sketcher.Constraint("Horizontal", 1))
sketch13.addConstraint(Sketcher.Constraint("Vertical", 2))
sketch13.addConstraint(Sketcher.Constraint("Horizontal", 3))
sketch13.addConstraint(Sketcher.Constraint("DistanceX", 1, 1, 1, 2, Q("1 in")))
sketch13.addConstraint(Sketcher.Constraint("DistanceX", 0, 2, -1, 1, Q("2 in")))
sketch13.addConstraint(Sketcher.Constraint("DistanceY", 0, 2, 0, 1, Q("0.1875 in")))
sketch13.addConstraint(Sketcher.Constraint("DistanceY", -1, 1, 2, 2, Q("1.275 in")))
pocket12 = body.newObject("PartDesign::Pocket", "Pocket011")
pocket12.Profile = sketch13
pocket12.Type = "ThroughAll"

sketch14 = body.newObject("Sketcher::SketchObject", "Sketch013")
sketch14.AttachmentSupport = (doc.getObject("XY_Plane"), [""])
sketch14.MapMode = "FlatFace"
sketch14.AttachmentOffset = App.Placement(V(0, 0, 0.25 * 25.4), App.Rotation())
sketch14.addGeometry(Part.LineSegment(V(3, -3, 0), V(3, -29, 0)), False)
sketch14.addGeometry(Part.LineSegment(V(3, -29, 0), V(76, -29, 0)), False)
sketch14.addGeometry(Part.LineSegment(V(76, -29, 0), V(76, -3, 0)), False)
sketch14.addGeometry(Part.LineSegment(V(76, -3, 0), V(3, -3, 0)), False)
sketch14.addConstraint(Sketcher.Constraint("Coincident", 0, 2, 1, 1))
sketch14.addConstraint(Sketcher.Constraint("Coincident", 1, 2, 2, 1))
sketch14.addConstraint(Sketcher.Constraint("Coincident", 2, 2, 3, 1))
sketch14.addConstraint(Sketcher.Constraint("Coincident", 3, 2, 0, 1))
sketch14.addConstraint(Sketcher.Constraint("Vertical", 0))
sketch14.addConstraint(Sketcher.Constraint("Horizontal", 1))
sketch14.addConstraint(Sketcher.Constraint("Vertical", 2))
sketch14.addConstraint(Sketcher.Constraint("Horizontal", 3))
sketch14.addConstraint(Sketcher.Constraint("DistanceY", 0, 2, 0, 1, Q("1 in")))
sketch14.addConstraint(Sketcher.Constraint("DistanceX", -1, 1, 1, 2, Q("3 in")))
sketch14.addConstraint(Sketcher.Constraint("DistanceX", 1, 1, 1, 2, Q("2.875 in")))
sketch14.addConstraint(Sketcher.Constraint("DistanceY", 0, 2, -1, 1, Q("1.125 in")))
pocket13 = body.newObject("PartDesign::Pocket", "Pocket012")
pocket13.Profile = sketch14
pocket13.Type = "ThroughAll"

sketch15 = body.newObject("Sketcher::SketchObject", "Sketch014")
sketch15.AttachmentSupport = (doc.getObject("XY_Plane"), [""])
sketch15.MapMode = "FlatFace"
sketch15.AttachmentOffset = App.Placement(V(0, 0, 0.25 * 25.4), App.Rotation())
sketch15.addGeometry(Part.LineSegment(V(13, 35, 0), V(13, 10, 0)), False)
sketch15.addGeometry(Part.LineSegment(V(13, 10, 0), V(64, 10, 0)), False)
sketch15.addGeometry(Part.LineSegment(V(64, 10, 0), V(64, 35, 0)), False)
sketch15.addGeometry(Part.LineSegment(V(64, 35, 0), V(13, 35, 0)), False)
sketch15.addConstraint(Sketcher.Constraint("Coincident", 0, 2, 1, 1))
sketch15.addConstraint(Sketcher.Constraint("Coincident", 1, 2, 2, 1))
sketch15.addConstraint(Sketcher.Constraint("Coincident", 2, 2, 3, 1))
sketch15.addConstraint(Sketcher.Constraint("Coincident", 3, 2, 0, 1))
sketch15.addConstraint(Sketcher.Constraint("Vertical", 0))
sketch15.addConstraint(Sketcher.Constraint("Horizontal", 1))
sketch15.addConstraint(Sketcher.Constraint("Vertical", 2))
sketch15.addConstraint(Sketcher.Constraint("Horizontal", 3))
sketch15.addConstraint(Sketcher.Constraint("DistanceX", 1, 1, 1, 2, Q("2 in")))
sketch15.addConstraint(Sketcher.Constraint("DistanceY", 0, 2, 0, 1, Q("1 in")))
sketch15.addConstraint(Sketcher.Constraint("DistanceX", -1, 1, 0, 2, Q("0.5 in")))
sketch15.addConstraint(Sketcher.Constraint("DistanceY", -1, 1, 0, 2, Q("0.375 in")))
pocket14 = body.newObject("PartDesign::Pocket", "Pocket013")
pocket14.Profile = sketch15
pocket14.Type = "ThroughAll"

doc.recompute()
